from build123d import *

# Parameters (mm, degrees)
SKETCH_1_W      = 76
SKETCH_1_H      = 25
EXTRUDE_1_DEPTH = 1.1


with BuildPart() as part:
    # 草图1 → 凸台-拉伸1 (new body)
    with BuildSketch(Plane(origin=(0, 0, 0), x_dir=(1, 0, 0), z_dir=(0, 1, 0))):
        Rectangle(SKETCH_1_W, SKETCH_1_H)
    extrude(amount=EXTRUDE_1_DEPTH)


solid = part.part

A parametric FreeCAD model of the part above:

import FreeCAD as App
import Part
import Sketcher
Q = App.Units.Quantity

doc = App.newDocument("Part")
params = doc.addObject("Spreadsheet::Sheet", "Params")
for row, (alias, value) in enumerate([
    ("sketch1_width", "76 mm"),
    ("sketch1_height", "25 mm"),
    ("pad1_length", "1.1 mm"),
], start=1):
    params.set(f"A{row}", alias)
    params.set(f"B{row}", "=" + value)
    params.setAlias(f"B{row}", alias)

body = doc.addObject("PartDesign::Body", "Body")

# Sketch on XZ plane
sketch1 = body.newObject("Sketcher::SketchObject", "Sketch")
sketch1.AttachmentSupport = (doc.getObject("XZ_Plane"), [""])
sketch1.MapMode = "FlatFace"
sketch1.addGeometry([
    Part.LineSegment(App.Vector(-38, -12.5, 0), App.Vector(-38, 12.5, 0)),
    Part.LineSegment(App.Vector(-38, 12.5, 0), App.Vector(38, 12.5, 0)),
    Part.LineSegment(App.Vector(38, 12.5, 0), App.Vector(38, -12.5, 0)),
    Part.LineSegment(App.Vector(38, -12.5, 0), App.Vector(-38, -12.5, 0)),
], False)
sketch1.addConstraint([
    Sketcher.Constraint("Coincident", 0, 2, 1, 1),
    Sketcher.Constraint("Coincident", 1, 2, 2, 1),
    Sketcher.Constraint("Coincident", 2, 2, 3, 1),
    Sketcher.Constraint("Coincident", 3, 2, 0, 1),
    Sketcher.Constraint("Vertical", 0),
    Sketcher.Constraint("Horizontal", 1),
    Sketcher.Constraint("Vertical", 2),
    Sketcher.Constraint("Horizontal", 3),
    Sketcher.Constraint("Symmetric", 0, 2, 2, 2, -1, 1),
    Sketcher.Constraint("DistanceX", 1, 1, 1, 2, Q("76 mm")),
    Sketcher.Constraint("DistanceY", 0, 1, 0, 2, Q("25 mm")),
])
sketch1.setExpression("Constraints[9]", "Params.sketch1_width")
sketch1.setExpression("Constraints[10]", "Params.sketch1_height")
pad1 = body.newObject("PartDesign::Pad", "Pad")
pad1.Profile = sketch1
pad1.setExpression("Length", "Params.pad1_length")
pad1.Reversed = True

doc.recompute()
